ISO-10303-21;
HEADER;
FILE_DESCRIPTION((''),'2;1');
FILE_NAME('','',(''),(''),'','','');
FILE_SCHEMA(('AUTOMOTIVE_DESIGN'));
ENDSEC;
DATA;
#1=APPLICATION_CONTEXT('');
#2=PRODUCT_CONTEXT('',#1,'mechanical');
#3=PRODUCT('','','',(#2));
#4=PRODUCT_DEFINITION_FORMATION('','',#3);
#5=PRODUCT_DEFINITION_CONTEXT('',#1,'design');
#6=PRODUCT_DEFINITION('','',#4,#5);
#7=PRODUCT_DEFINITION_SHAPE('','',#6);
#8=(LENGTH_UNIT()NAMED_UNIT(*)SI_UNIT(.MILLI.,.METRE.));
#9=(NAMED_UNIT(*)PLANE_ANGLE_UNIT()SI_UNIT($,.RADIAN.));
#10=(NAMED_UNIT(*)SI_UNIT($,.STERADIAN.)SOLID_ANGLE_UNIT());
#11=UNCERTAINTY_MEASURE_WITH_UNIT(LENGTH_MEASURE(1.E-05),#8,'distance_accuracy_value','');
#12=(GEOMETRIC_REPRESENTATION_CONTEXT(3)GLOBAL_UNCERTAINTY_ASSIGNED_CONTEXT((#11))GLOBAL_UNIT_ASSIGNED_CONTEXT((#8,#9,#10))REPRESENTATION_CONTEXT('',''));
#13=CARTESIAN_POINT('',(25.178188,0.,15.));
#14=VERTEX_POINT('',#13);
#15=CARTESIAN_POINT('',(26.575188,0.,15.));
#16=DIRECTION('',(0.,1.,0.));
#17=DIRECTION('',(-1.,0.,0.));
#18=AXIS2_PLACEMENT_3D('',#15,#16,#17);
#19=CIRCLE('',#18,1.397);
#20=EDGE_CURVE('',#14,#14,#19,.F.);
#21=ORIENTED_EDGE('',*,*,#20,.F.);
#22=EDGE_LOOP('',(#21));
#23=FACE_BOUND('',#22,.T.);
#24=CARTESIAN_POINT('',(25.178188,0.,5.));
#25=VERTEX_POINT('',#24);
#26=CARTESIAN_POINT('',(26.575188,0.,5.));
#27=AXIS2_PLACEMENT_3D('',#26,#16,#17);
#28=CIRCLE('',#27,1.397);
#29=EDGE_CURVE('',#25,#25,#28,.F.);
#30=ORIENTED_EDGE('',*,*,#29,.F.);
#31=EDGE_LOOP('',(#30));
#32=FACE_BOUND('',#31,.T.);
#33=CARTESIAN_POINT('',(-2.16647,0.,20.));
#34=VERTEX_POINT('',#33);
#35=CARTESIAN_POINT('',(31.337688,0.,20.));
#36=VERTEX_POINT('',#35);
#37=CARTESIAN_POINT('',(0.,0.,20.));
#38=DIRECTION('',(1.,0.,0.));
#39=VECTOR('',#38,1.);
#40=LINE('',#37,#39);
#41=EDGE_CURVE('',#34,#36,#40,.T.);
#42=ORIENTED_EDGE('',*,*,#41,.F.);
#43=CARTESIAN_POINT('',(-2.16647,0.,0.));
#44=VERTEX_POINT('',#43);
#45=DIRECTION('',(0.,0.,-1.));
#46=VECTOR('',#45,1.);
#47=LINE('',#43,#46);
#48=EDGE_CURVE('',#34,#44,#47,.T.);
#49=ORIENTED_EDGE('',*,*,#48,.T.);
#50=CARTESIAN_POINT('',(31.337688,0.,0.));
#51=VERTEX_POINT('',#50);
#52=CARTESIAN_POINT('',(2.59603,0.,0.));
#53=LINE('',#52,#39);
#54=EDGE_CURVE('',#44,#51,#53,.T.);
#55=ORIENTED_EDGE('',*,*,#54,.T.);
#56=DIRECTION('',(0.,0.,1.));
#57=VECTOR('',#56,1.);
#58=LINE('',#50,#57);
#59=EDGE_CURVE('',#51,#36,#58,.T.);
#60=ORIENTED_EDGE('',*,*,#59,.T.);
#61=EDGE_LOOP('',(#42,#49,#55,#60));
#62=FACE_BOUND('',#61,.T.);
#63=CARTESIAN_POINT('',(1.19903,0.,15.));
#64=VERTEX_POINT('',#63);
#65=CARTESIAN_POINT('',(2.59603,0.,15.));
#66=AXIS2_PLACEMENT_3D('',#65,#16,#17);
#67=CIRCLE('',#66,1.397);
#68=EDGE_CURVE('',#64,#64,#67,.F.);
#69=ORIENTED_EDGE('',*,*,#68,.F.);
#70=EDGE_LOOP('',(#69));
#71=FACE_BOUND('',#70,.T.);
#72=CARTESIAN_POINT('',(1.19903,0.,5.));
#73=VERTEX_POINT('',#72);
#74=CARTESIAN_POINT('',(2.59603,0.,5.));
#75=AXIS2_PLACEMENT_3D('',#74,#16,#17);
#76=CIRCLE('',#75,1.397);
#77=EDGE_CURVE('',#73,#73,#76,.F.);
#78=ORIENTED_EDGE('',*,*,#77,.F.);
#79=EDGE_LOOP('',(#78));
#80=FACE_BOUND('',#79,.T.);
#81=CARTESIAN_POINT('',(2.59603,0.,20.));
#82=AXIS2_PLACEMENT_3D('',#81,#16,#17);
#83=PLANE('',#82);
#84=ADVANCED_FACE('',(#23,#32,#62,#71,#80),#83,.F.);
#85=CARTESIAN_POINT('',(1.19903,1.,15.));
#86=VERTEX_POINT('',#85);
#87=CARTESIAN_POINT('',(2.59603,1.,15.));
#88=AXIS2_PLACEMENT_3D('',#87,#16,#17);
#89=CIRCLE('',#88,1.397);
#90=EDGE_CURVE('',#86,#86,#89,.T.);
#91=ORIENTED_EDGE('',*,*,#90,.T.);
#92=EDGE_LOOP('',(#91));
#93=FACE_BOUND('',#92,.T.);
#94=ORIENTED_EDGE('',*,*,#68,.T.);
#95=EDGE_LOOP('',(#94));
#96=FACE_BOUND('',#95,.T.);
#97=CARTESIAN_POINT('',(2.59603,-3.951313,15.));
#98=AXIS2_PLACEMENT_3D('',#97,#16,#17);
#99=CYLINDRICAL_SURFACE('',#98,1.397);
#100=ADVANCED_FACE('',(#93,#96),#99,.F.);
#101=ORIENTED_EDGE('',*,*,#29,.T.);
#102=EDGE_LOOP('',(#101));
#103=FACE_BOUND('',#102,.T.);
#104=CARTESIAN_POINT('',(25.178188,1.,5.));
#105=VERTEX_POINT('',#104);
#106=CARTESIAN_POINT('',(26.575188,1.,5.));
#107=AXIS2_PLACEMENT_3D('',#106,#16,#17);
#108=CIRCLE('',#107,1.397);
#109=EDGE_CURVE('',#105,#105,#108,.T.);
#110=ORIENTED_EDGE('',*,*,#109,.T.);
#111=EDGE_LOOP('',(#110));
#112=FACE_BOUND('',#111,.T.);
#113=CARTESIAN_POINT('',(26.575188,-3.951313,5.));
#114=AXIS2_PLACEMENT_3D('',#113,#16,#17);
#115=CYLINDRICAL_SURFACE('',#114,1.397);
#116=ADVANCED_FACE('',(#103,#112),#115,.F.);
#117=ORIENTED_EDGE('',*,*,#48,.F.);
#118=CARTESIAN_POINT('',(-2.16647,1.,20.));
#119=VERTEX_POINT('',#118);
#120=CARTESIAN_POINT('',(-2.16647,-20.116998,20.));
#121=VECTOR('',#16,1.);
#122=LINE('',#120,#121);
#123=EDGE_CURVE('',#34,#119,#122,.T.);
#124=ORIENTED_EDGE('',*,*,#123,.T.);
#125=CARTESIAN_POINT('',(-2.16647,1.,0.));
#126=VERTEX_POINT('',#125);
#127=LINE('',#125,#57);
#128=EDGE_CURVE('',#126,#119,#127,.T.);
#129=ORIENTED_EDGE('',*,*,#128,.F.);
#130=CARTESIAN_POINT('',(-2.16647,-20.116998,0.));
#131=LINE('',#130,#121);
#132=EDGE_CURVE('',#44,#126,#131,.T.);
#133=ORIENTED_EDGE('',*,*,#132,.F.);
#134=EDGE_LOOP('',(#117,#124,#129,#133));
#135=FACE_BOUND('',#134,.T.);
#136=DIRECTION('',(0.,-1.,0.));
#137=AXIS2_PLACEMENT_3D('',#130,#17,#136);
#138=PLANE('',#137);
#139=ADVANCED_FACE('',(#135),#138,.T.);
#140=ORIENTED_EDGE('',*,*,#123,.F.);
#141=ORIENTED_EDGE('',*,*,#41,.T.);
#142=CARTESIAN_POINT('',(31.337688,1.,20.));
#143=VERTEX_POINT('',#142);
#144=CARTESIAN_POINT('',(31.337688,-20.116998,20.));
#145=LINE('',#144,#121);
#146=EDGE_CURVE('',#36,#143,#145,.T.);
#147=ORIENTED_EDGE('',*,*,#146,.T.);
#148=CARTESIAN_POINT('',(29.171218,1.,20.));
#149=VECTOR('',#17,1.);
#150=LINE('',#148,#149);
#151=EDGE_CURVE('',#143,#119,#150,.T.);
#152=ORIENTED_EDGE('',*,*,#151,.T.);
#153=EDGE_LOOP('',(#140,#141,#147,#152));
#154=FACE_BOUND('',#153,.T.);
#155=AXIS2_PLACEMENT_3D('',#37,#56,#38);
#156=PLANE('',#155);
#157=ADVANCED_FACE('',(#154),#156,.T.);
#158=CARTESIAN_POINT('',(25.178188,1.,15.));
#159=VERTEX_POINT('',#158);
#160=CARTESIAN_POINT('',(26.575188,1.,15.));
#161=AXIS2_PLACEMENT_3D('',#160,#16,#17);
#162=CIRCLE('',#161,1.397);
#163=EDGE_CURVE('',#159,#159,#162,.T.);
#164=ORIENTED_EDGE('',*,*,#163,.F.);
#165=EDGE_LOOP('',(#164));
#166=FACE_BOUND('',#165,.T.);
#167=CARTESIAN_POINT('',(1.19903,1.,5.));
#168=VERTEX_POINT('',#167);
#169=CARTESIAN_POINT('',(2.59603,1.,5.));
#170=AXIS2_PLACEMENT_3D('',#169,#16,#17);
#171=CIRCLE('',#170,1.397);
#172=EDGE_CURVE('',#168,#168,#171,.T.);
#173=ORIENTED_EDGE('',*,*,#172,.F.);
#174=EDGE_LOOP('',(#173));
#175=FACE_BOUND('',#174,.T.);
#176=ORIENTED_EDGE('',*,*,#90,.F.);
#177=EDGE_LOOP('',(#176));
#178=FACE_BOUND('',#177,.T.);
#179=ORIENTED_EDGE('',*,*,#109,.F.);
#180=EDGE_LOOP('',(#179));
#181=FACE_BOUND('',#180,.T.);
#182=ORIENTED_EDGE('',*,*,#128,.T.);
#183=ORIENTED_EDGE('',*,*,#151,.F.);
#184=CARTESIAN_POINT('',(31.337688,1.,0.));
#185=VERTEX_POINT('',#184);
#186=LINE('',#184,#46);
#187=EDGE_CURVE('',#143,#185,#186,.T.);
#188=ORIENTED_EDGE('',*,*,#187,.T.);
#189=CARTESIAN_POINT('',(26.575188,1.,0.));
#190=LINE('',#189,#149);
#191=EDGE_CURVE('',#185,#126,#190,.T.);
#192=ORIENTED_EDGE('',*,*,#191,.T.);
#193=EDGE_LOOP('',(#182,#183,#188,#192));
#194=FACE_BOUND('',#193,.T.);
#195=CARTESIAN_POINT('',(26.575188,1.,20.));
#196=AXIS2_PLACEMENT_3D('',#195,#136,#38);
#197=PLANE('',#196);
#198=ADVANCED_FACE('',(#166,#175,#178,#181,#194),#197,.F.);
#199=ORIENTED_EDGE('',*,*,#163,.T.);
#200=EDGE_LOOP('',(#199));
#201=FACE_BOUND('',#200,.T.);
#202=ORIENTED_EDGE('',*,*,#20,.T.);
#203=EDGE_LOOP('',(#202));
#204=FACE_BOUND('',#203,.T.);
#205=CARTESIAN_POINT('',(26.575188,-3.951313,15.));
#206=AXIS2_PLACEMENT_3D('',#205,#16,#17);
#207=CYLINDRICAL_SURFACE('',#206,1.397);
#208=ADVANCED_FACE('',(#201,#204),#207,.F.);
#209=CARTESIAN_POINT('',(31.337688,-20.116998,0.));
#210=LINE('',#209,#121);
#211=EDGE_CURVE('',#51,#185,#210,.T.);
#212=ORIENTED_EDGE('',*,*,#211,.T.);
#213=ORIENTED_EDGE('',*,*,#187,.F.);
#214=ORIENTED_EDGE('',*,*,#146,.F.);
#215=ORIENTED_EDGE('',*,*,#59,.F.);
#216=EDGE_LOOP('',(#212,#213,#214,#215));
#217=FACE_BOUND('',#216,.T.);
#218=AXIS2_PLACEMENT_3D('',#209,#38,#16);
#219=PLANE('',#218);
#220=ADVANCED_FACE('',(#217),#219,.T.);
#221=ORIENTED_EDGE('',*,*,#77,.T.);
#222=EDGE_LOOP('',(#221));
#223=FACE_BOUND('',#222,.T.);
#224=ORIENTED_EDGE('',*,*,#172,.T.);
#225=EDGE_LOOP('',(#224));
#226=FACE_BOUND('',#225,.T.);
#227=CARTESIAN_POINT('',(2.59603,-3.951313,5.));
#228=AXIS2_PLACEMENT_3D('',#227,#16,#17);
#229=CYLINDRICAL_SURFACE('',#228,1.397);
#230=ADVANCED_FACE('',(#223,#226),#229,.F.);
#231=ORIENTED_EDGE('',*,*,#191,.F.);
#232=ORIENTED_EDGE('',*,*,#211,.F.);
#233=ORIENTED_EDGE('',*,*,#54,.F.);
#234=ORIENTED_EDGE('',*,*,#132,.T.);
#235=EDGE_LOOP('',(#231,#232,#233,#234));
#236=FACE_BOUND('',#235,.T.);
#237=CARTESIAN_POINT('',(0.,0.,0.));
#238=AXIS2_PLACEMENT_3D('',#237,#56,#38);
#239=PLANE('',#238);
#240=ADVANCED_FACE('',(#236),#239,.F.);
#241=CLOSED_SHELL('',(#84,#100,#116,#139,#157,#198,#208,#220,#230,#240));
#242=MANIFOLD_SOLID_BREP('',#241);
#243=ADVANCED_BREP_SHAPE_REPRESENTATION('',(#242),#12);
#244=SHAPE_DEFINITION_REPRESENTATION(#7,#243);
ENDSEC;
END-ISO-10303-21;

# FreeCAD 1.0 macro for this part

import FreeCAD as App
import Part
import Sketcher

V = App.Vector
Q = App.Units.Quantity

doc = App.newDocument("Part")
body = doc.addObject("PartDesign::Body", "Body")

sketch1 = body.newObject("Sketcher::SketchObject", "Sketch")
sketch1.AttachmentSupport = (doc.getObject("XY_Plane"), [""])
sketch1.MapMode = "FlatFace"
sketch1.addGeometry(Part.LineSegment(V(0, 0, 0), V(29.171218, 0, 0)), False)
sketch1.addGeometry(Part.LineSegment(V(29.171218, 0, 0), V(29.171218, 1, 0)), False)
sketch1.addGeometry(Part.LineSegment(V(29.171218, 1, 0), V(0, 1, 0)), False)
sketch1.addGeometry(Part.LineSegment(V(0, 1, 0), V(0, 0, 0)), False)
sketch1.addConstraint(Sketcher.Constraint("Coincident", 0, 2, 1, 1))
sketch1.addConstraint(Sketcher.Constraint("Coincident", 1, 2, 2, 1))
sketch1.addConstraint(Sketcher.Constraint("Coincident", 2, 2, 3, 1))
sketch1.addConstraint(Sketcher.Constraint("Coincident", 3, 2, 0, 1))
sketch1.addConstraint(Sketcher.Constraint("Horizontal", 0))
sketch1.addConstraint(Sketcher.Constraint("Vertical", 1))
sketch1.addConstraint(Sketcher.Constraint("Horizontal", 2))
sketch1.addConstraint(Sketcher.Constraint("Vertical", 3))
sketch1.addConstraint(Sketcher.Constraint("Coincident", 3, 2, -1, 1))
sketch1.addConstraint(Sketcher.Constraint("DistanceY", 1, 1, 1, 2, Q("1 mm")))
sketch1.addConstraint(Sketcher.Constraint("DistanceX", 0, 1, 0, 2, Q("29.171218 mm")))
pad1 = body.newObject("PartDesign::Pad", "Pad")
pad1.Profile = sketch1
pad1.Length = 20

sketch2 = body.newObject("Sketcher::SketchObject", "Sketch001")
sketch2.AttachmentSupport = (doc.getObject("XZ_Plane"), [""])
sketch2.MapMode = "FlatFace"
sketch2.AttachmentOffset = App.Placement(V(0, 0, -1), App.Rotation())
sketch2.addGeometry(Part.Circle(V(26.575188, 15, 0), V(0, 0, 1), 1.397), False)
sketch2.addGeometry(Part.Circle(V(2.59603, 15, 0), V(0, 0, 1), 1.397), False)
sketch2.addGeometry(Part.Circle(V(2.59603, 5, 0), V(0, 0, 1), 1.397), False)
sketch2.addGeometry(Part.Circle(V(26.575188, 5, 0), V(0, 0, 1), 1.397), False)
sketch2.addConstraint(Sketcher.Constraint("Equal", 0, 1))
sketch2.addConstraint(Sketcher.Constraint("Equal", 1, 2))
sketch2.addConstraint(Sketcher.Constraint("Equal", 2, 3))
sketch2.addConstraint(Sketcher.Constraint("Horizontal", 0, 3, 1, 3))
sketch2.addConstraint(Sketcher.Constraint("Horizontal", 2, 3, 3, 3))
sketch2.addConstraint(Sketcher.Constraint("Vertical", 1, 3, 2, 3))
sketch2.addConstraint(Sketcher.Constraint("Vertical", 0, 3, 3, 3))
sketch2.addConstraint(Sketcher.Constraint("Diameter", 0, Q("2.794 mm")))
sketch2.addConstraint(Sketcher.Constraint("DistanceY", -1, 1, 0, 3, Q("15 mm")))
sketch2.addConstraint(Sketcher.Constraint("DistanceY", -1, 1, 2, 3, Q("5 mm")))
sketch2.addConstraint(Sketcher.Constraint("DistanceX", -1, 1, 1, 3, Q("2.59603 mm")))
sketch2.addConstraint(Sketcher.Constraint("DistanceX", -1, 1, 0, 3, Q("26.575188 mm")))
pocket1 = body.newObject("PartDesign::Pocket", "Pocket")
pocket1.Profile = sketch2
pocket1.Length = 1
pocket1.Reversed = True

sketch3 = body.newObject("Sketcher::SketchObject", "Sketch002")
sketch3.AttachmentSupport = (doc.getObject("XZ_Plane"), [""])
sketch3.MapMode = "FlatFace"
sketch3.AttachmentOffset = App.Placement(V(0, 0, -1), App.Rotation())
sketch3.addGeometry(Part.LineSegment(V(29.171218, 0, 0), V(29.171218, 20, 0)), False)
sketch3.addGeometry(Part.LineSegment(V(29.171218, 20, 0), V(31.337688, 20, 0)), False)
sketch3.addGeometry(Part.LineSegment(V(31.337688, 20, 0), V(31.337688, 0, 0)), False)
sketch3.addGeometry(Part.LineSegment(V(31.337688, 0, 0), V(29.171218, 0, 0)), False)
sketch3.addGeometry(Part.LineSegment(V(-2.16647, 0, 0), V(-2.16647, 20, 0)), False)
sketch3.addGeometry(Part.LineSegment(V(-2.16647, 20, 0), V(0, 20, 0)), False)
sketch3.addGeometry(Part.LineSegment(V(0, 20, 0), V(0, 0, 0)), False)
sketch3.addGeometry(Part.LineSegment(V(0, 0, 0), V(-2.16647, 0, 0)), False)
sketch3.addConstraint(Sketcher.Constraint("Coincident", 0, 2, 1, 1))
sketch3.addConstraint(Sketcher.Constraint("Coincident", 1, 2, 2, 1))
sketch3.addConstraint(Sketcher.Constraint("Coincident", 2, 2, 3, 1))
sketch3.addConstraint(Sketcher.Constraint("Coincident", 3, 2, 0, 1))
sketch3.addConstraint(Sketcher.Constraint("Coincident", 4, 2, 5, 1))
sketch3.addConstraint(Sketcher.Constraint("Coincident", 5, 2, 6, 1))
sketch3.addConstraint(Sketcher.Constraint("Coincident", 6, 2, 7, 1))
sketch3.addConstraint(Sketcher.Constraint("Coincident", 7, 2, 4, 1))
sketch3.addConstraint(Sketcher.Constraint("Vertical", 0))
sketch3.addConstraint(Sketcher.Constraint("Horizontal", 1))
sketch3.addConstraint(Sketcher.Constraint("Vertical", 2))
sketch3.addConstraint(Sketcher.Constraint("Horizontal", 3))
sketch3.addConstraint(Sketcher.Constraint("Vertical", 4))
sketch3.addConstraint(Sketcher.Constraint("Horizontal", 5))
sketch3.addConstraint(Sketcher.Constraint("Vertical", 6))
sketch3.addConstraint(Sketcher.Constraint("Horizontal", 7))
sketch3.addConstraint(Sketcher.Constraint("Coincident", 6, 2, -1, 1))
sketch3.addConstraint(Sketcher.Constraint("PointOnObject", 2, 2, -1))
sketch3.addConstraint(Sketcher.Constraint("Horizontal", 1, 2, 4, 2))
sketch3.addConstraint(Sketcher.Constraint("Equal", 3, 5))
sketch3.addConstraint(Sketcher.Constraint("DistanceY", 0, 1, 0, 2, Q("20 mm")))
sketch3.addConstraint(Sketcher.Constraint("DistanceX", 1, 1, 1, 2, Q("2.16647 mm")))
sketch3.addConstraint(Sketcher.Constraint("DistanceX", -1, 1, 0, 2, Q("29.171218 mm")))
pad2 = body.newObject("PartDesign::Pad", "Pad001")
pad2.Profile = sketch3
pad2.Length = 1

doc.recompute()
